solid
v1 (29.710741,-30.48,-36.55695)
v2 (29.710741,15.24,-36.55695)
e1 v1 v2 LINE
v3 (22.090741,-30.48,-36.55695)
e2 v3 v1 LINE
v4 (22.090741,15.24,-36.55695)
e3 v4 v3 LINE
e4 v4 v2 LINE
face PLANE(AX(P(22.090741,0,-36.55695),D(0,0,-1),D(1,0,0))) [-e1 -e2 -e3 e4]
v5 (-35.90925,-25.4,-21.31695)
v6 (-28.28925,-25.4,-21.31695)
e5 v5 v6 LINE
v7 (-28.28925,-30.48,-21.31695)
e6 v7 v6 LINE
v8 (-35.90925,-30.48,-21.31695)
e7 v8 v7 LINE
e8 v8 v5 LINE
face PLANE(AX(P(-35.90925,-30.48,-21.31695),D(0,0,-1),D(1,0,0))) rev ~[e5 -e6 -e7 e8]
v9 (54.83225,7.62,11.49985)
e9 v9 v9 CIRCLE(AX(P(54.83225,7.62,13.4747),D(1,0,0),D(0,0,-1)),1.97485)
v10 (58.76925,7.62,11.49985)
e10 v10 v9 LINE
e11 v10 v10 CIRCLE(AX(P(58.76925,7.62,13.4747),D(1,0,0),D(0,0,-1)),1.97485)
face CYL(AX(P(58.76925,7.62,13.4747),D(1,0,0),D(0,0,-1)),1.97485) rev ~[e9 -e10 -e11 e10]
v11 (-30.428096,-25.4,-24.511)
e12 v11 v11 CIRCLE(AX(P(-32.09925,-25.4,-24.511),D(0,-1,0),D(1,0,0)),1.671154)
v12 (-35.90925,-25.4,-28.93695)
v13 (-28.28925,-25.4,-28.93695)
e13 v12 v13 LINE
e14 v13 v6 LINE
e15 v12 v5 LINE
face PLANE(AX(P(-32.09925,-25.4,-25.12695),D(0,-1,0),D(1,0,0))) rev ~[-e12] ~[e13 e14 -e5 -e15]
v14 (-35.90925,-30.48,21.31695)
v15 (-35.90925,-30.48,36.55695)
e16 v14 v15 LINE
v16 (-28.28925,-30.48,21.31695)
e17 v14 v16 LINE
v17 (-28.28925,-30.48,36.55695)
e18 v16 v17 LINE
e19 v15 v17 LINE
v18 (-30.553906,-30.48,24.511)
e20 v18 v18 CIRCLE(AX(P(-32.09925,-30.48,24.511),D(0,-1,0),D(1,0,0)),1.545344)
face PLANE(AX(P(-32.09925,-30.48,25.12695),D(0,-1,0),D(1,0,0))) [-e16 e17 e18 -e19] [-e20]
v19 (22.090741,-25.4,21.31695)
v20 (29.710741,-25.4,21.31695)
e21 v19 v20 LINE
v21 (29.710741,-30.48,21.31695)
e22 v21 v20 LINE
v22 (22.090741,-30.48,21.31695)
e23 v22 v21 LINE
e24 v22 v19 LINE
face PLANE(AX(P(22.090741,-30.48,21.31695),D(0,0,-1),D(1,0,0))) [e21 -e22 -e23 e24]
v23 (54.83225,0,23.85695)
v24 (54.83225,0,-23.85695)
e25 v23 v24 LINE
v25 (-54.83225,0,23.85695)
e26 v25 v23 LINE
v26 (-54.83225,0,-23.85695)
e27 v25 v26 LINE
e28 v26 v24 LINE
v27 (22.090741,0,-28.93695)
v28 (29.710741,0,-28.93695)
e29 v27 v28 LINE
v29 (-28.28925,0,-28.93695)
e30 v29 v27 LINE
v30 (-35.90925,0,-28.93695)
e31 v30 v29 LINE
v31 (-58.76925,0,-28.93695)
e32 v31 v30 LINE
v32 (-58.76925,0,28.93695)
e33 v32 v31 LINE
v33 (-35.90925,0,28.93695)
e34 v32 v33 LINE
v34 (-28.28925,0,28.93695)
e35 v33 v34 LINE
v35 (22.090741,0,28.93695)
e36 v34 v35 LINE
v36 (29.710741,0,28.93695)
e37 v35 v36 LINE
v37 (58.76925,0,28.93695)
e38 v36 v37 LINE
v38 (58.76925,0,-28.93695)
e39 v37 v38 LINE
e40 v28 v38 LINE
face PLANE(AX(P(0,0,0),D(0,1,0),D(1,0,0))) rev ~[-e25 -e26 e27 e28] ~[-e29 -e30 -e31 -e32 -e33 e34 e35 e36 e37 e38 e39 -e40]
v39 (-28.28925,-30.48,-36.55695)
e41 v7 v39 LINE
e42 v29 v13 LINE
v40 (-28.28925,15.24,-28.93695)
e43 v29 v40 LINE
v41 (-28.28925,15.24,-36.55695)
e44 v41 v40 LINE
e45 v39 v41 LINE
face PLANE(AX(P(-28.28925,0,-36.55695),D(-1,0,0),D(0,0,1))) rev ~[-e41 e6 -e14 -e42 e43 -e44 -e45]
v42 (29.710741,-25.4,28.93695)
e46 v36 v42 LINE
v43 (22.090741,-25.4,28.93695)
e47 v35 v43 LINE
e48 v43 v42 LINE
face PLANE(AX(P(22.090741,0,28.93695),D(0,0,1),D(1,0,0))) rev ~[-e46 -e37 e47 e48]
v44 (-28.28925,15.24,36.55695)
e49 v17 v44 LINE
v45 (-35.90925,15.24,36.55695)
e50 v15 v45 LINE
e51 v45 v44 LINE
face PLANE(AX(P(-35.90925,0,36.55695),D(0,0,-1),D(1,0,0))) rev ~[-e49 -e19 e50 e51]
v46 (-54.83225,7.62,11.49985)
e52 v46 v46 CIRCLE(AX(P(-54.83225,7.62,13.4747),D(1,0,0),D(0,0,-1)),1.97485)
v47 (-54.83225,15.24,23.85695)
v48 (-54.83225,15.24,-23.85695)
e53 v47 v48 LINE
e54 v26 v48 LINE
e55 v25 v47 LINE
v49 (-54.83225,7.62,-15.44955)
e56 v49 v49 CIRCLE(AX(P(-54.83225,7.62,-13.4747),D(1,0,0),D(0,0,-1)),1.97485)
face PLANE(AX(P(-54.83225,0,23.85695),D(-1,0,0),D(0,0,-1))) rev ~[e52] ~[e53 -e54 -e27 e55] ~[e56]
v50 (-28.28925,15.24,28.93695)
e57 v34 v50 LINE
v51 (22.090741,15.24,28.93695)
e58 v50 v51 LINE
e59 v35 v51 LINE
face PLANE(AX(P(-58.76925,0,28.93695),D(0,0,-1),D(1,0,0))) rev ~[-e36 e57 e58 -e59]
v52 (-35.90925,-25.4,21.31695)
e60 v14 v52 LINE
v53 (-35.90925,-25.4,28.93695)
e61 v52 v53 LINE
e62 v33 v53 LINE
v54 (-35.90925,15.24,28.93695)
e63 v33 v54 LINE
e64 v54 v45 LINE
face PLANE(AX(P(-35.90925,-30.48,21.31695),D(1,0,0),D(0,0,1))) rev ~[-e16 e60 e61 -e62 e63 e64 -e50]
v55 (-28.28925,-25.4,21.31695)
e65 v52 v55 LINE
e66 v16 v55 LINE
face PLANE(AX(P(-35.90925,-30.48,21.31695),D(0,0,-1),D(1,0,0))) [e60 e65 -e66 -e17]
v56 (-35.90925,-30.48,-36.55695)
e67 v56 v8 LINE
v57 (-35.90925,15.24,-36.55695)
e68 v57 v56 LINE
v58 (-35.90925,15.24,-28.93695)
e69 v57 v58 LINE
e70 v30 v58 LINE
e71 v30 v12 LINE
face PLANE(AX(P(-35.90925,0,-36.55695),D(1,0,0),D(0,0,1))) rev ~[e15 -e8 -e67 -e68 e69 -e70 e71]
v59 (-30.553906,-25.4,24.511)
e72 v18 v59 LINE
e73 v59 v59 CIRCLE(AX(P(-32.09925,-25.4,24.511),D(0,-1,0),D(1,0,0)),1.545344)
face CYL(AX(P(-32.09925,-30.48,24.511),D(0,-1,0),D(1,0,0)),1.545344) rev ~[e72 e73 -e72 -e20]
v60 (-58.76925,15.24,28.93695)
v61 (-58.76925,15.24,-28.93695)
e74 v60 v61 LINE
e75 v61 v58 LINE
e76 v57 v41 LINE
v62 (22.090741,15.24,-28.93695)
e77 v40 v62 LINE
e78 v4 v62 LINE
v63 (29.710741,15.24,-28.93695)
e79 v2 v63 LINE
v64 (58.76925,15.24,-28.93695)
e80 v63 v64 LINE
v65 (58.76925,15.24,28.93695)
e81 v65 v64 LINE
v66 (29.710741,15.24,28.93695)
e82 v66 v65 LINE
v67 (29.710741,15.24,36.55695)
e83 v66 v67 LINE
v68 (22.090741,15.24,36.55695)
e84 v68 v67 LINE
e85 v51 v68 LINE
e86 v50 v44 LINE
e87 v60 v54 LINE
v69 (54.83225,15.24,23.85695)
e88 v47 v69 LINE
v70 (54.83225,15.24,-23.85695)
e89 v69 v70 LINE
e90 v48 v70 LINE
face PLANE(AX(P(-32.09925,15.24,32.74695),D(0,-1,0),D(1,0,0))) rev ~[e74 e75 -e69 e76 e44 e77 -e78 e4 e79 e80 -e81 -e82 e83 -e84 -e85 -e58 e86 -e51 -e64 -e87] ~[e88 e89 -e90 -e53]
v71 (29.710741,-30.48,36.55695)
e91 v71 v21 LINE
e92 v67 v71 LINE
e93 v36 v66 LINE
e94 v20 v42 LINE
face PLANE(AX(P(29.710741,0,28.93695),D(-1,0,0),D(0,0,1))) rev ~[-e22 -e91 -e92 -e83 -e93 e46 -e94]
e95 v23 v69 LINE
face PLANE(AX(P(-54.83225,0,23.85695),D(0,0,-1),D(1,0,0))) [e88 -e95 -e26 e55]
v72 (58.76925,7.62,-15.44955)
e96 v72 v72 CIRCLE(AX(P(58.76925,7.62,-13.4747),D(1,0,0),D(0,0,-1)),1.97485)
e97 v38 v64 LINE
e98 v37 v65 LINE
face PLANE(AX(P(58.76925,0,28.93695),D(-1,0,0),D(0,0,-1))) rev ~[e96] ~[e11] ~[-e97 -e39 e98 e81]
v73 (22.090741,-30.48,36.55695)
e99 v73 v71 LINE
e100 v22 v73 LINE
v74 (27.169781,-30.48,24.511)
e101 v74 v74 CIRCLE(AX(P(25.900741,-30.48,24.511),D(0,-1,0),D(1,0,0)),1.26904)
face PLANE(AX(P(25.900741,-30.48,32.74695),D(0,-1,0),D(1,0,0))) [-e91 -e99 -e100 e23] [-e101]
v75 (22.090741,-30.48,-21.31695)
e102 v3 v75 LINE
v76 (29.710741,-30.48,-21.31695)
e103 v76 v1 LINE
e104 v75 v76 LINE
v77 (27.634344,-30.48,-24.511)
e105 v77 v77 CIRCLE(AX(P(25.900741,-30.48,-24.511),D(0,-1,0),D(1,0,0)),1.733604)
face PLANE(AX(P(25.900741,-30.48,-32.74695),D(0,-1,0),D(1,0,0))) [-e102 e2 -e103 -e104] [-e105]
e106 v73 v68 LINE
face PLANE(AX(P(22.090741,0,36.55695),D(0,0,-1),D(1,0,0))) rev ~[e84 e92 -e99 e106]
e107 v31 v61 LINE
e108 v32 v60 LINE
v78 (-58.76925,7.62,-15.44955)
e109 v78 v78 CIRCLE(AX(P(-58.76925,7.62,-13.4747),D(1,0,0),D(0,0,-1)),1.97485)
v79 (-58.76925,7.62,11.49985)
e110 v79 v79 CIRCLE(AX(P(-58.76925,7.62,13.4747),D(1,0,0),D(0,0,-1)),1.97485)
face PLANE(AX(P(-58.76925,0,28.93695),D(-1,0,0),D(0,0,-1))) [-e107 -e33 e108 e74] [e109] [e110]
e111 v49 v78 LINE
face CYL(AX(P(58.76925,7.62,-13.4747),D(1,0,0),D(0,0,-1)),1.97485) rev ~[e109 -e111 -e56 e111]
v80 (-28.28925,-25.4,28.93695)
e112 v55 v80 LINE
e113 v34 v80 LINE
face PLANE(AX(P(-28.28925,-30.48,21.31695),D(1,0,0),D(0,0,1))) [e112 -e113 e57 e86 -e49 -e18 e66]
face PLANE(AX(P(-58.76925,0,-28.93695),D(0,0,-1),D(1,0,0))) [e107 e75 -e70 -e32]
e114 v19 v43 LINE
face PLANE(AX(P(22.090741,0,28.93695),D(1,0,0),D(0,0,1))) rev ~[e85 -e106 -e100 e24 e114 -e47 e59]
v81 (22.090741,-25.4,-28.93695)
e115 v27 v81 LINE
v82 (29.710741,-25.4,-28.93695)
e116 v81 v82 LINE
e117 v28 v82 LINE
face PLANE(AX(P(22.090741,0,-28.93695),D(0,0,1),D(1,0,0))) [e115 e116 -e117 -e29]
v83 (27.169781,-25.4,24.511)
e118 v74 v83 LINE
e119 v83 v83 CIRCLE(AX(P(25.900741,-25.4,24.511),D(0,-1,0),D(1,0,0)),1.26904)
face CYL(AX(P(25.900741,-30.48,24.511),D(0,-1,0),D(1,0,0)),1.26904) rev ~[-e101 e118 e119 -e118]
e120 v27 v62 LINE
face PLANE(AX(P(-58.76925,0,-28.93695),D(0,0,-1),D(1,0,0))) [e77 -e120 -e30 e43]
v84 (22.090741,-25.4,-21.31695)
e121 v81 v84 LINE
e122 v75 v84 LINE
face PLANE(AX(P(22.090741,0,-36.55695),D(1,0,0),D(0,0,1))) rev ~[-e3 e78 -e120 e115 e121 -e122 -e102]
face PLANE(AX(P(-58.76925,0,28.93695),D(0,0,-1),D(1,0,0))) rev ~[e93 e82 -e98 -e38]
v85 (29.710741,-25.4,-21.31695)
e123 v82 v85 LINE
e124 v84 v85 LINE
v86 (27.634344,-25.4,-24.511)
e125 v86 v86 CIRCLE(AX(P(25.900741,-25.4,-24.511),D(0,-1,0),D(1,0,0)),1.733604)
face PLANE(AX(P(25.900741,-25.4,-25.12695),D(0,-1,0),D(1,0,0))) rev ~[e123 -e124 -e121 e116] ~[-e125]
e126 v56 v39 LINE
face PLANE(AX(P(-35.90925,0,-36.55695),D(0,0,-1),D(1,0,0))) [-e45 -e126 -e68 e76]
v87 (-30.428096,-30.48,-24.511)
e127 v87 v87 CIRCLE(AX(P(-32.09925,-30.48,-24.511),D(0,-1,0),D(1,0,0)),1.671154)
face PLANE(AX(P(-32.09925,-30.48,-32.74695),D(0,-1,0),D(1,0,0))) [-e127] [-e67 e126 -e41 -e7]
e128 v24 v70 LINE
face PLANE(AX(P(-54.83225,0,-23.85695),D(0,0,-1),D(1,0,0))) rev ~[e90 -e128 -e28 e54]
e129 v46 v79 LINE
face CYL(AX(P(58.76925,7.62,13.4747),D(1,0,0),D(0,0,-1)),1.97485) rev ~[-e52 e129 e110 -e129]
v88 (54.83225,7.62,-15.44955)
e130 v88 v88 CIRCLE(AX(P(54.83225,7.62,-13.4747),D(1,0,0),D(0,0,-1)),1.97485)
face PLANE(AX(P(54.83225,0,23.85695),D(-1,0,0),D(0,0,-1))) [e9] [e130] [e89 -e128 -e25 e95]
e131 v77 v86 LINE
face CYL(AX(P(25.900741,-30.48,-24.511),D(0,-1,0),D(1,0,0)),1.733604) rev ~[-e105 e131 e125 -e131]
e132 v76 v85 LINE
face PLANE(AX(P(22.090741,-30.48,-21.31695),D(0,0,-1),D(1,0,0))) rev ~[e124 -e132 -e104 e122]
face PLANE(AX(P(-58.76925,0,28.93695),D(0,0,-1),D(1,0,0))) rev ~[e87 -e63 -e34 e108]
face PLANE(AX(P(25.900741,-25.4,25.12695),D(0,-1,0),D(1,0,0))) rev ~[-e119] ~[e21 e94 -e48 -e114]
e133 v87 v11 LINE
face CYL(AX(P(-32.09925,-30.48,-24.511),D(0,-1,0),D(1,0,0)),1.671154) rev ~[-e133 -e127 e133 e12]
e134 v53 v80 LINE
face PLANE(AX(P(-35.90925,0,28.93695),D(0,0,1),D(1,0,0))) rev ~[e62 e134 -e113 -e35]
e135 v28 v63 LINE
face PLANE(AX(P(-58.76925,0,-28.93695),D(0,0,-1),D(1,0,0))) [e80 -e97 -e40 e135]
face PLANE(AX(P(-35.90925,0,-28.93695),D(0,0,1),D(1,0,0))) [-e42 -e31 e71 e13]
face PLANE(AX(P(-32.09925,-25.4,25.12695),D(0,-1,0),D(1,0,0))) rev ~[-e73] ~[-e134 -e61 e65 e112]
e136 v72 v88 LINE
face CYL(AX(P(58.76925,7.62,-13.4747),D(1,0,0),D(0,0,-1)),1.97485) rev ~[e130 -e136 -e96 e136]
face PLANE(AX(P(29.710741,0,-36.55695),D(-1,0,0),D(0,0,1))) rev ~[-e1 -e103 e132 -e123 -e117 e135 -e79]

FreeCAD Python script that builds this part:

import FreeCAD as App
import Part
import Sketcher
from FreeCAD import Vector
Q = App.Units.Quantity


def add_polygon(sketch, points):
    """Adds a closed chain of lines whose ends are joined by coincident constraints."""
    first, n = sketch.GeometryCount, len(points)
    for a, b in zip(points, points[1:] + points[:1]):
        sketch.addGeometry(Part.LineSegment(App.Vector(*a, 0), App.Vector(*b, 0)), False)
    for i in range(n):
        sketch.addConstraint(Sketcher.Constraint("Coincident", first + i, 2, first + (i + 1) % n, 1))

doc = App.newDocument("Part")
body = doc.addObject("PartDesign::Body", "Body")

# Sketch on XZ plane
sketch1 = body.newObject("Sketcher::SketchObject", "Sketch")
sketch1.AttachmentSupport = (doc.getObject("XZ_Plane"), [""])
sketch1.MapMode = "FlatFace"
add_polygon(sketch1, [(-59, -29), (-59, 29), (59, 29), (59, -29)])  # lines 0-3
add_polygon(sketch1, [(55, 24), (-55, 24), (-55, -24), (55, -24)])  # lines 4-7
sketch1.addConstraint(Sketcher.Constraint("Vertical", 0))
sketch1.addConstraint(Sketcher.Constraint("Horizontal", 1))
sketch1.addConstraint(Sketcher.Constraint("Vertical", 2))
sketch1.addConstraint(Sketcher.Constraint("Horizontal", 3))
sketch1.addConstraint(Sketcher.Constraint("Horizontal", 4))
sketch1.addConstraint(Sketcher.Constraint("Vertical", 5))
sketch1.addConstraint(Sketcher.Constraint("Horizontal", 6))
sketch1.addConstraint(Sketcher.Constraint("Vertical", 7))
sketch1.addConstraint(Sketcher.Constraint("Symmetric", 0, 2, 2, 2, -1, 1))
sketch1.addConstraint(Sketcher.Constraint("Symmetric", 4, 2, 6, 2, -1, 1))
sketch1.addConstraint(Sketcher.Constraint("DistanceY", 4, 2, 0, 2, Q("0.2 in")))
sketch1.addConstraint(Sketcher.Constraint("DistanceX", 1, 1, 1, 2, Q("4.6275 in")))
sketch1.addConstraint(Sketcher.Constraint("DistanceX", 4, 2, 4, 1, Q("4.3175 in")))
sketch1.addConstraint(Sketcher.Constraint("DistanceY", 0, 1, 0, 2, Q("2.2785 in")))
pad1 = body.newObject("PartDesign::Pad", "Pad")
pad1.Profile = sketch1
pad1.Length = Q("0.6 in")
pad1.Reversed = True

# Sketch on YZ plane
sketch2 = body.newObject("Sketcher::SketchObject", "Sketch001")
sketch2.AttachmentSupport = (doc.getObject("YZ_Plane"), [""])
sketch2.MapMode = "FlatFace"
sketch2.AttachmentOffset = App.Placement(Vector(0, 0, 58.76925), App.Rotation())
sketch2.addGeometry(Part.Circle(Vector(7.6, 13.5, 0), Vector(0, 0, 1), 2), False)
sketch2.addGeometry(Part.Circle(Vector(7.6, -13.5, 0), Vector(0, 0, 1), 2), False)
sketch2.addConstraint(Sketcher.Constraint("Equal", 0, 1))
sketch2.addConstraint(Sketcher.Constraint("Symmetric", 0, 3, 1, 3, -1))
sketch2.addConstraint(Sketcher.Constraint("Diameter", 0, Q("0.1555 in")))
sketch2.addConstraint(Sketcher.Constraint("DistanceX", -1, 1, 0, 3, Q("0.3 in")))
sketch2.addConstraint(Sketcher.Constraint("DistanceY", 1, 3, 0, 3, Q("1.061 in")))
pocket1 = body.newObject("PartDesign::Pocket", "Pocket")
pocket1.Profile = sketch2
pocket1.Length = Q("5.08 in")

# Sketch on XZ plane
sketch3 = body.newObject("Sketcher::SketchObject", "Sketch002")
sketch3.AttachmentSupport = (doc.getObject("XZ_Plane"), [""])
sketch3.MapMode = "FlatFace"
add_polygon(sketch3, [(-36, 37), (-36, 29), (-28, 29), (-28, 37)])  # lines 0-3
add_polygon(sketch3, [(22, 37), (22, 29), (30, 29), (30, 37)])  # lines 4-7
add_polygon(sketch3, [(-36, -29), (-36, -37), (-28, -37), (-28, -29)])  # lines 8-11
add_polygon(sketch3, [(22, -29), (22, -37), (30, -37), (30, -29)])  # lines 12-15
sketch3.addConstraint(Sketcher.Constraint("Vertical", 0))
sketch3.addConstraint(Sketcher.Constraint("Horizontal", 1))
sketch3.addConstraint(Sketcher.Constraint("Vertical", 2))
sketch3.addConstraint(Sketcher.Constraint("Horizontal", 3))
sketch3.addConstraint(Sketcher.Constraint("Vertical", 4))
sketch3.addConstraint(Sketcher.Constraint("Horizontal", 5))
sketch3.addConstraint(Sketcher.Constraint("Vertical", 6))
sketch3.addConstraint(Sketcher.Constraint("Horizontal", 7))
sketch3.addConstraint(Sketcher.Constraint("Vertical", 8))
sketch3.addConstraint(Sketcher.Constraint("Horizontal", 9))
sketch3.addConstraint(Sketcher.Constraint("Vertical", 10))
sketch3.addConstraint(Sketcher.Constraint("Horizontal", 11))
sketch3.addConstraint(Sketcher.Constraint("Vertical", 12))
sketch3.addConstraint(Sketcher.Constraint("Horizontal", 13))
sketch3.addConstraint(Sketcher.Constraint("Vertical", 14))
sketch3.addConstraint(Sketcher.Constraint("Horizontal", 15))
sketch3.addConstraint(Sketcher.Constraint("Symmetric", 3, 2, 8, 2, -1))
sketch3.addConstraint(Sketcher.Constraint("Symmetric", 1, 2, 10, 2, -1))
sketch3.addConstraint(Sketcher.Constraint("Symmetric", 7, 2, 12, 2, -1))
sketch3.addConstraint(Sketcher.Constraint("Symmetric", 5, 2, 14, 2, -1))
sketch3.addConstraint(Sketcher.Constraint("Horizontal", 1, 2, 4, 2))
sketch3.addConstraint(Sketcher.Constraint("Horizontal", 3, 2, 6, 2))
sketch3.addConstraint(Sketcher.Constraint("Equal", 3, 5))
sketch3.addConstraint(Sketcher.Constraint("Equal", 15, 0))
sketch3.addConstraint(Sketcher.Constraint("DistanceX", 1, 1, 1, 2, Q("0.3 in")))
sketch3.addConstraint(Sketcher.Constraint("DistanceY", 8, 2, 0, 2, Q("2.5785 in")))
sketch3.addConstraint(Sketcher.Constraint("DistanceX", 0, 2, -1, 1, 35.90925))
sketch3.addConstraint(Sketcher.Constraint("DistanceX", -1, 1, 4, 2, 22.090741))
pad2 = body.newObject("PartDesign::Pad", "Pad001")
pad2.Profile = sketch3
pad2.Type = "TwoLengths"
pad2.Length = Q("1.2 in")
pad2.Length2 = Q("0.6 in")

# Sketch on XZ plane
sketch4 = body.newObject("Sketcher::SketchObject", "Sketch003")
sketch4.AttachmentSupport = (doc.getObject("XZ_Plane"), [""])
sketch4.MapMode = "FlatFace"
sketch4.AttachmentOffset = App.Placement(Vector(0, 0, 1.2 * 25.4), App.Rotation())
add_polygon(sketch4, [(-35.9, 28.9), (-35.9, 21.3), (-28.3, 21.3), (-28.3, 28.9)])  # lines 0-3
sketch4.addGeometry(Part.Circle(Vector(-32.1, 24.5, 0), Vector(0, 0, 1), 1.5), False)  # 4
add_polygon(sketch4, [(22.1, 28.9), (22.1, 21.3), (29.7, 21.3), (29.7, 28.9)])  # lines 5-8
sketch4.addGeometry(Part.Circle(Vector(25.9, 24.5, 0), Vector(0, 0, 1), 1.3), False)  # 9
add_polygon(sketch4, [(-35.9, -21.3), (-35.9, -28.9), (-28.3, -28.9), (-28.3, -21.3)])  # lines 10-13
sketch4.addGeometry(Part.Circle(Vector(-32.1, -24.5, 0), Vector(0, 0, 1), 1.7), False)  # 14
add_polygon(sketch4, [(22.1, -21.3), (22.1, -28.9), (29.7, -28.9), (29.7, -21.3)])  # lines 15-18
sketch4.addGeometry(Part.Circle(Vector(25.9, -24.5, 0), Vector(0, 0, 1), 1.7), False)  # 19
sketch4.addConstraint(Sketcher.Constraint("Vertical", 0))
sketch4.addConstraint(Sketcher.Constraint("Horizontal", 1))
sketch4.addConstraint(Sketcher.Constraint("Vertical", 2))
sketch4.addConstraint(Sketcher.Constraint("Horizontal", 3))
sketch4.addConstraint(Sketcher.Constraint("Vertical", 5))
sketch4.addConstraint(Sketcher.Constraint("Horizontal", 6))
sketch4.addConstraint(Sketcher.Constraint("Vertical", 7))
sketch4.addConstraint(Sketcher.Constraint("Horizontal", 8))
sketch4.addConstraint(Sketcher.Constraint("Vertical", 10))
sketch4.addConstraint(Sketcher.Constraint("Horizontal", 11))
sketch4.addConstraint(Sketcher.Constraint("Vertical", 12))
sketch4.addConstraint(Sketcher.Constraint("Horizontal", 13))
sketch4.addConstraint(Sketcher.Constraint("Vertical", 15))
sketch4.addConstraint(Sketcher.Constraint("Horizontal", 16))
sketch4.addConstraint(Sketcher.Constraint("Vertical", 17))
sketch4.addConstraint(Sketcher.Constraint("Horizontal", 18))
sketch4.addConstraint(Sketcher.Constraint("Symmetric", 4, 3, 14, 3, -1))
sketch4.addConstraint(Sketcher.Constraint("Symmetric", 9, 3, 19, 3, -1))
sketch4.addConstraint(Sketcher.Constraint("Symmetric", 3, 2, 10, 2, -1))
sketch4.addConstraint(Sketcher.Constraint("Symmetric", 1, 2, 12, 2, -1))
sketch4.addConstraint(Sketcher.Constraint("Symmetric", 8, 2, 15, 2, -1))
sketch4.addConstraint(Sketcher.Constraint("Symmetric", 6, 2, 17, 2, -1))
sketch4.addConstraint(Sketcher.Constraint("Horizontal", 4, 3, 9, 3))
sketch4.addConstraint(Sketcher.Constraint("Horizontal", 1, 2, 5, 2))
sketch4.addConstraint(Sketcher.Constraint("Horizontal", 3, 2, 7, 2))
sketch4.addConstraint(Sketcher.Constraint("Equal", 3, 6))
sketch4.addConstraint(Sketcher.Constraint("Equal", 18, 0))
sketch4.addConstraint(Sketcher.Constraint("DistanceX", 1, 1, 1, 2, Q("0.3 in")))
sketch4.addConstraint(Sketcher.Constraint("DistanceY", 14, 3, 4, 3, Q("1.93 in")))
sketch4.addConstraint(Sketcher.Constraint("DistanceX", 0, 2, 4, 3, Q("0.15 in")))
sketch4.addConstraint(Sketcher.Constraint("DistanceX", 5, 2, 9, 3, Q("0.15 in")))
sketch4.addConstraint(Sketcher.Constraint("Diameter", 4, 3.090689))
sketch4.addConstraint(Sketcher.Constraint("Diameter", 9, 2.53808))
sketch4.addConstraint(Sketcher.Constraint("Diameter", 14, 3.342309))
sketch4.addConstraint(Sketcher.Constraint("Diameter", 19, 3.467207))
sketch4.addConstraint(Sketcher.Constraint("DistanceY", 10, 2, 0, 2, Q("1.9785 in")))
sketch4.addConstraint(Sketcher.Constraint("DistanceX", 4, 3, -1, 1, 32.09925))
sketch4.addConstraint(Sketcher.Constraint("DistanceX", -1, 1, 9, 3, 25.900741))
pad3 = body.newObject("PartDesign::Pad", "Pad002")
pad3.Profile = sketch4
pad3.Length = Q("0.2 in")
pad3.Reversed = True

doc.recompute()
